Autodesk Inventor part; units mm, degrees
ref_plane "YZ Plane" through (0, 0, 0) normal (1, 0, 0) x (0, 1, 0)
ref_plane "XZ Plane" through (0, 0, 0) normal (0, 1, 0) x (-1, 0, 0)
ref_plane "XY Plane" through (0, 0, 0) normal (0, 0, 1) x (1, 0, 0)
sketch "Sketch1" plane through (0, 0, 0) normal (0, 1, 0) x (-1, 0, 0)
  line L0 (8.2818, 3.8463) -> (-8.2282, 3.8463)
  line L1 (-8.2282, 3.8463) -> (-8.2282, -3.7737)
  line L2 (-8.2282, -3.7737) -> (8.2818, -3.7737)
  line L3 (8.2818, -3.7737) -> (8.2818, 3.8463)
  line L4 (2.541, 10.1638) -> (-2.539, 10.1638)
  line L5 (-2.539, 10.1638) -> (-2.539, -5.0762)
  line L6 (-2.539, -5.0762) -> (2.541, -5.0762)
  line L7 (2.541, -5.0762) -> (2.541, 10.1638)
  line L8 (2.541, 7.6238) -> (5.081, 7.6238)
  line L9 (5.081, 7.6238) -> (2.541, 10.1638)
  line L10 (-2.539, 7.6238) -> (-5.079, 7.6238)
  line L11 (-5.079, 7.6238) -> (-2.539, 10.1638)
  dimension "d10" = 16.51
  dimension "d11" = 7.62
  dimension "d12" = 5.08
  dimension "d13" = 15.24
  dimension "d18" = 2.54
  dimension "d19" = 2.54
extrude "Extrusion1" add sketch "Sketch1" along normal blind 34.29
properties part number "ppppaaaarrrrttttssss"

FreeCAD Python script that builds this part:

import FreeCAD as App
import Part
import Sketcher

V = App.Vector
Q = App.Units.Quantity

doc = App.newDocument("Part")
params = doc.addObject("Spreadsheet::Sheet", "Params")
for row, (alias, value) in enumerate([
    ("sketch1_width", "0.1 in"),
    ("sketch1_width2", "0.2 in"),
    ("sketch1_height", "0.3 in"),
    ("pad1_length", "1.35 in"),
], start=1):
    params.set(f"A{row}", alias)
    params.set(f"B{row}", "=" + value)
    params.setAlias(f"B{row}", alias)

body = doc.addObject("PartDesign::Body", "Body")

sketch1 = doc.addObject("Sketcher::SketchObject", "Sketch")
body.addObject(sketch1)
sketch1.AttachmentSupport = (doc.XZ_Plane, [""])
sketch1.MapMode = "FlatFace"
sketch1.addGeometry([
    Part.LineSegment(V(-8.3, -3.8, 0), V(-8.3, 3.8, 0)),
    Part.LineSegment(V(-8.3, 3.8, 0), V(-2.5, 3.8, 0)),
    Part.LineSegment(V(-2.5, 3.8, 0), V(-2.5, 7.6, 0)),
    Part.LineSegment(V(-2.5, 7.6, 0), V(-5.1, 7.6, 0)),
    Part.LineSegment(V(-5.1, 7.6, 0), V(-2.5, 10.2, 0)),
    Part.LineSegment(V(-2.5, 10.2, 0), V(2.5, 10.2, 0)),
    Part.LineSegment(V(2.5, 10.2, 0), V(5.1, 7.6, 0)),
    Part.LineSegment(V(5.1, 7.6, 0), V(2.5, 7.6, 0)),
    Part.LineSegment(V(2.5, 7.6, 0), V(2.5, 3.8, 0)),
    Part.LineSegment(V(2.5, 3.8, 0), V(8.2, 3.8, 0)),
    Part.LineSegment(V(8.2, 3.8, 0), V(8.2, -3.8, 0)),
    Part.LineSegment(V(8.2, -3.8, 0), V(2.5, -3.8, 0)),
    Part.LineSegment(V(2.5, -3.8, 0), V(2.5, -5.1, 0)),
    Part.LineSegment(V(2.5, -5.1, 0), V(-2.5, -5.1, 0)),
    Part.LineSegment(V(-2.5, -5.1, 0), V(-2.5, -3.8, 0)),
    Part.LineSegment(V(-2.5, -3.8, 0), V(-8.3, -3.8, 0)),
], False)
sketch1.addConstraint([
    Sketcher.Constraint("Coincident", 0, 2, 1, 1),
    Sketcher.Constraint("Coincident", 1, 2, 2, 1),
    Sketcher.Constraint("Coincident", 2, 2, 3, 1),
    Sketcher.Constraint("Coincident", 3, 2, 4, 1),
    Sketcher.Constraint("Coincident", 4, 2, 5, 1),
    Sketcher.Constraint("Coincident", 5, 2, 6, 1),
    Sketcher.Constraint("Coincident", 6, 2, 7, 1),
    Sketcher.Constraint("Coincident", 7, 2, 8, 1),
    Sketcher.Constraint("Coincident", 8, 2, 9, 1),
    Sketcher.Constraint("Coincident", 9, 2, 10, 1),
    Sketcher.Constraint("Coincident", 10, 2, 11, 1),
    Sketcher.Constraint("Coincident", 11, 2, 12, 1),
    Sketcher.Constraint("Coincident", 12, 2, 13, 1),
    Sketcher.Constraint("Coincident", 13, 2, 14, 1),
    Sketcher.Constraint("Coincident", 14, 2, 15, 1),
    Sketcher.Constraint("Coincident", 15, 2, 0, 1),
    Sketcher.Constraint("Vertical", 0),
    Sketcher.Constraint("Horizontal", 1),
    Sketcher.Constraint("Vertical", 2),
    Sketcher.Constraint("Horizontal", 3),
    Sketcher.Constraint("Horizontal", 5),
    Sketcher.Constraint("Horizontal", 7),
    Sketcher.Constraint("Vertical", 8),
    Sketcher.Constraint("Horizontal", 9),
    Sketcher.Constraint("Vertical", 10),
    Sketcher.Constraint("Horizontal", 11),
    Sketcher.Constraint("Vertical", 12),
    Sketcher.Constraint("Horizontal", 13),
    Sketcher.Constraint("Vertical", 14),
    Sketcher.Constraint("Horizontal", 15),
    Sketcher.Constraint("Perpendicular", 4, 6),
    Sketcher.Constraint("Horizontal", 3, 2, 6, 2),
    Sketcher.Constraint("Horizontal", 1, 2, 8, 2),
    Sketcher.Constraint("Horizontal", 11, 2, 14, 2),
    Sketcher.Constraint("Vertical", 2, 2, 4, 2),
    Sketcher.Constraint("Vertical", 5, 2, 7, 2),
    Sketcher.Constraint("Vertical", 8, 2, 11, 2),
    Sketcher.Constraint("Vertical", 4, 2, 13, 2),
    Sketcher.Constraint("Equal", 3, 7),
    Sketcher.Constraint("DistanceX", 3, 2, 3, 1, Q("0.1 in")),
    Sketcher.Constraint("DistanceX", 5, 1, 5, 2, Q("0.2 in")),
    Sketcher.Constraint("DistanceY", 0, 1, 0, 2, Q("0.3 in")),
    Sketcher.Constraint("DistanceX", 1, 1, 1, 2, Q("5.7408 mm")),
    Sketcher.Constraint("DistanceX", 9, 1, 9, 2, Q("5.6892 mm")),
    Sketcher.Constraint("DistanceY", 2, 1, 2, 2, Q("3.7775 mm")),
    Sketcher.Constraint("DistanceY", 12, 2, 12, 1, Q("1.3025 mm")),
    Sketcher.Constraint("DistanceX", 0, 2, -1, 1, Q("8.2818 mm")),
    Sketcher.Constraint("DistanceY", -1, 1, 0, 2, Q("3.8463 mm")),
])
sketch1.setExpression("Constraints[39]", "Params.sketch1_width")
sketch1.setExpression("Constraints[40]", "Params.sketch1_width2")
sketch1.setExpression("Constraints[41]", "Params.sketch1_height")
pad1 = doc.addObject("PartDesign::Pad", "Pad")
body.addObject(pad1)
pad1.Profile = sketch1
pad1.setExpression("Length", "Params.pad1_length")
pad1.Reversed = True

doc.recompute()
